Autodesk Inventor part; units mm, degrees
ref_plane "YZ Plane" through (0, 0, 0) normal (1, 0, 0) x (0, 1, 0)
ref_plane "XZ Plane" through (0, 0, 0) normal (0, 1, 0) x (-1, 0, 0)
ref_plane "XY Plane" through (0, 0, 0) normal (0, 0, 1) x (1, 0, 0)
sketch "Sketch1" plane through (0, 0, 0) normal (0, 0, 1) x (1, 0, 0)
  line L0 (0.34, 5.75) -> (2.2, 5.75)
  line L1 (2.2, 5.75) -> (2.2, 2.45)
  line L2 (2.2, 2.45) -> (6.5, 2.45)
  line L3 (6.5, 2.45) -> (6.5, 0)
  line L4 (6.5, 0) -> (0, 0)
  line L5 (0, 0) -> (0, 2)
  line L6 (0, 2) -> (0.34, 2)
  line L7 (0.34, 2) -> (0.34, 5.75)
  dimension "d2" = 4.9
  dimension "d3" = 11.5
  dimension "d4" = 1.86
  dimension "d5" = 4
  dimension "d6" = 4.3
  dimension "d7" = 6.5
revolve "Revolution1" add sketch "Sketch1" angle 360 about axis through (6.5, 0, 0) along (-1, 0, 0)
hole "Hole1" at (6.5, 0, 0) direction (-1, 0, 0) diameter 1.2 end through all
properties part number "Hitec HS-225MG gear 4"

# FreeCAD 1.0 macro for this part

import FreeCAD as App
import Part
import Sketcher
from FreeCAD import Vector
Q = App.Units.Quantity


def add_polygon(sketch, points):
    """Adds a closed chain of lines whose ends are joined by coincident constraints."""
    first, n = sketch.GeometryCount, len(points)
    for a, b in zip(points, points[1:] + points[:1]):
        sketch.addGeometry(Part.LineSegment(App.Vector(*a, 0), App.Vector(*b, 0)), False)
    for i in range(n):
        sketch.addConstraint(Sketcher.Constraint("Coincident", first + i, 2, first + (i + 1) % n, 1))

doc = App.newDocument("Part")
params = doc.addObject("Spreadsheet::Sheet", "Params")
for row, (alias, value) in enumerate([
    ("sketch1_width", "6.5 mm"),
    ("sketch1_width2", "4.3 mm"),
    ("sketch1_width3", "1.86 mm"),
    ("sketch1_height", "2 mm"),
    ("sketch1_height2", "3.3 mm"),
    ("revolution_angle", "360 deg"),
    ("sketch2_diameter", "1.2 mm"),
    ("hole_diameter", "1.2 mm"),
], start=1):
    params.set(f"A{row}", alias)
    params.set(f"B{row}", "=" + value)
    params.setAlias(f"B{row}", alias)

body = doc.addObject("PartDesign::Body", "Body")

# Sketch on XY plane
sketch1 = doc.addObject("Sketcher::SketchObject", "Sketch")
body.addObject(sketch1)
sketch1.AttachmentSupport = (doc.XY_Plane, [""])
sketch1.MapMode = "FlatFace"
add_polygon(sketch1, [(2.2, 5.75), (0.34, 5.75), (0.34, 2), (0, 2), (0, 0), (6.5, 0), (6.5, 2.45), (2.2, 2.45)])  # lines 0-7
sketch1.addConstraint(Sketcher.Constraint("Horizontal", 0))
sketch1.addConstraint(Sketcher.Constraint("Vertical", 1))
sketch1.addConstraint(Sketcher.Constraint("Horizontal", 2))
sketch1.addConstraint(Sketcher.Constraint("Vertical", 3))
sketch1.addConstraint(Sketcher.Constraint("Horizontal", 4))
sketch1.addConstraint(Sketcher.Constraint("Vertical", 5))
sketch1.addConstraint(Sketcher.Constraint("Horizontal", 6))
sketch1.addConstraint(Sketcher.Constraint("Vertical", 7))
sketch1.addConstraint(Sketcher.Constraint("Coincident", 3, 2, -1, 1))
sketch1.addConstraint(Sketcher.Constraint("DistanceX", 4, 1, 4, 2, Q("6.5 mm")))
sketch1.addConstraint(Sketcher.Constraint("DistanceX", 6, 2, 6, 1, Q("4.3 mm")))
sketch1.addConstraint(Sketcher.Constraint("DistanceX", 0, 2, 0, 1, Q("1.86 mm")))
sketch1.addConstraint(Sketcher.Constraint("DistanceY", 3, 2, 3, 1, Q("2 mm")))
sketch1.addConstraint(Sketcher.Constraint("DistanceY", 7, 1, 7, 2, Q("3.3 mm")))
sketch1.addConstraint(Sketcher.Constraint("DistanceY", 1, 2, 1, 1, Q("3.75 mm")))
sketch1.setExpression("Constraints[17]", "Params.sketch1_width")
sketch1.setExpression("Constraints[18]", "Params.sketch1_width2")
sketch1.setExpression("Constraints[19]", "Params.sketch1_width3")
sketch1.setExpression("Constraints[20]", "Params.sketch1_height")
sketch1.setExpression("Constraints[21]", "Params.sketch1_height2")
revolution = doc.addObject("PartDesign::Revolution", "Revolution")
body.addObject(revolution)
revolution.Profile = sketch1
revolution.ReferenceAxis = (sketch1, ["H_Axis"])
revolution.setExpression("Angle", "Params.revolution_angle")

# Sketch on YZ plane
sketch2 = doc.addObject("Sketcher::SketchObject", "Sketch001")
body.addObject(sketch2)
sketch2.AttachmentSupport = (doc.YZ_Plane, [""])
sketch2.MapMode = "FlatFace"
sketch2.AttachmentOffset = App.Placement(Vector(0, 0, 6.5), App.Rotation())
sketch2.addGeometry(Part.Circle(Vector(0, 0, 0), Vector(0, 0, 1), 0.6), False)
sketch2.addConstraint(Sketcher.Constraint("Coincident", 0, 3, -1, 1))
sketch2.addConstraint(Sketcher.Constraint("Diameter", 0, Q("1.2 mm")))
sketch2.setExpression("Constraints[1]", "Params.sketch2_diameter")
doc.recompute()
hole = doc.addObject("PartDesign::Hole", "Hole")
body.addObject(hole)
hole.Profile = sketch2
hole.ThreadType = "None"
hole.setExpression("Diameter", "Params.hole_diameter")
hole.DepthType = "ThroughAll"

doc.recompute()
